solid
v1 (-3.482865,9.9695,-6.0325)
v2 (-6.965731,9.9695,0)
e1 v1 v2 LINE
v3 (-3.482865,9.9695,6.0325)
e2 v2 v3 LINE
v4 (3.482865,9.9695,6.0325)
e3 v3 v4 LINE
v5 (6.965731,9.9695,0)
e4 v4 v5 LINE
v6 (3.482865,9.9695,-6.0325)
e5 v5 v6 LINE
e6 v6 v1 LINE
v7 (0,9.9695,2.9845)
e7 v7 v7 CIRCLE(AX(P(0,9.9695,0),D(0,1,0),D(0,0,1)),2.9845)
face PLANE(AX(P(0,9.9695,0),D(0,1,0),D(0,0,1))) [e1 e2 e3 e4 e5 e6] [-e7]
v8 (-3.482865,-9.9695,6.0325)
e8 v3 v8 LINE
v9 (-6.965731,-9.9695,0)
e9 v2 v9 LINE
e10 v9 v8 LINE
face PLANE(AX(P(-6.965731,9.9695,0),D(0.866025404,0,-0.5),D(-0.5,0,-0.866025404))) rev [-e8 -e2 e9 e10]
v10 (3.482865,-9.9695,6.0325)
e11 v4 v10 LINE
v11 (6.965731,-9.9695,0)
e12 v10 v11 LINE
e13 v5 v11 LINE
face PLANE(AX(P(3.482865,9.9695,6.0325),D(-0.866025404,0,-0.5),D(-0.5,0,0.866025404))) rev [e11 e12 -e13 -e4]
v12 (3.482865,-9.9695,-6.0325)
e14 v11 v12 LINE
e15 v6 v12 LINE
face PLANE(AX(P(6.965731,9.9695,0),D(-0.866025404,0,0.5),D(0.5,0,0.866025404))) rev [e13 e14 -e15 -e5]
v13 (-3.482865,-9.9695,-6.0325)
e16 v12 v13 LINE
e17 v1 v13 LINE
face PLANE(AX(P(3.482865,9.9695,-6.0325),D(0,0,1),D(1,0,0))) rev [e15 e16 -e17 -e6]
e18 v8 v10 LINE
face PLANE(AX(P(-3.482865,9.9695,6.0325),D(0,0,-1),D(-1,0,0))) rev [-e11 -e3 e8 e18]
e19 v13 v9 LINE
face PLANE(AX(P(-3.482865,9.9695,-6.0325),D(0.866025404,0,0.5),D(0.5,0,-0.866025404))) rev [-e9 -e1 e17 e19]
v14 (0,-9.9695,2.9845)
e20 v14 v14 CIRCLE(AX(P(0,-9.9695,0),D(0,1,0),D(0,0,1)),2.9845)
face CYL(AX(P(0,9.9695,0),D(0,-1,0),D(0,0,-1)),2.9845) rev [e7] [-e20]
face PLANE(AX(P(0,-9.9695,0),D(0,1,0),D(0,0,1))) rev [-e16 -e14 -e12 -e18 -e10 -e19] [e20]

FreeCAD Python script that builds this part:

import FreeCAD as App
import Part
import Sketcher
Q = App.Units.Quantity

doc = App.newDocument("Part")
body = doc.addObject("PartDesign::Body", "Body")

# Sketch on XZ plane
sketch1 = doc.addObject("Sketcher::SketchObject", "Sketch")
body.addObject(sketch1)
sketch1.AttachmentSupport = (doc.XZ_Plane, [""])
sketch1.MapMode = "FlatFace"
sketch1.addGeometry([
    Part.LineSegment(App.Vector(6.965731, 0, 0), App.Vector(3.482865, -6.0325, 0)),  # 0
    Part.LineSegment(App.Vector(3.482865, -6.0325, 0), App.Vector(-3.482865, -6.0325, 0)),  # 1
    Part.LineSegment(App.Vector(-3.482865, -6.0325, 0), App.Vector(-6.965731, 0, 0)),  # 2
    Part.LineSegment(App.Vector(-6.965731, 0, 0), App.Vector(-3.482865, 6.0325, 0)),  # 3
    Part.LineSegment(App.Vector(-3.482865, 6.0325, 0), App.Vector(3.482865, 6.0325, 0)),  # 4
    Part.LineSegment(App.Vector(3.482865, 6.0325, 0), App.Vector(6.965731, 0, 0)),  # 5
    Part.Circle(App.Vector(0, 0, 0), App.Vector(0, 0, 1), 2.9845),  # 6
], False)
sketch1.addConstraint([
    Sketcher.Constraint("Coincident", 0, 2, 1, 1),
    Sketcher.Constraint("Coincident", 1, 2, 2, 1),
    Sketcher.Constraint("Coincident", 2, 2, 3, 1),
    Sketcher.Constraint("Coincident", 3, 2, 4, 1),
    Sketcher.Constraint("Coincident", 4, 2, 5, 1),
    Sketcher.Constraint("Coincident", 5, 2, 0, 1),
    Sketcher.Constraint("Horizontal", 1),
    Sketcher.Constraint("Horizontal", 4),
    Sketcher.Constraint("Coincident", 6, 3, -1, 1),
    Sketcher.Constraint("Symmetric", 0, 2, 3, 2, -1, 1),
    Sketcher.Constraint("Symmetric", 2, 2, 5, 2, -1, 1),
    Sketcher.Constraint("PointOnObject", 2, 2, -1),
    Sketcher.Constraint("Parallel", 2, 5),
    Sketcher.Constraint("Vertical", 1, 2, 3, 2),
    Sketcher.Constraint("Diameter", 6, Q("0.235 in")),
    Sketcher.Constraint("Angle", 0, Q("-120 deg")),
    Sketcher.Constraint("DistanceY", 1, 2, 3, 2, Q("0.475 in")),
    Sketcher.Constraint("DistanceX", 1, 2, 1, 1, 6.965731),
])
pad1 = doc.addObject("PartDesign::Pad", "Pad")
body.addObject(pad1)
pad1.Profile = sketch1
pad1.Length = Q("0.785 in")
pad1.Midplane = True

doc.recompute()
